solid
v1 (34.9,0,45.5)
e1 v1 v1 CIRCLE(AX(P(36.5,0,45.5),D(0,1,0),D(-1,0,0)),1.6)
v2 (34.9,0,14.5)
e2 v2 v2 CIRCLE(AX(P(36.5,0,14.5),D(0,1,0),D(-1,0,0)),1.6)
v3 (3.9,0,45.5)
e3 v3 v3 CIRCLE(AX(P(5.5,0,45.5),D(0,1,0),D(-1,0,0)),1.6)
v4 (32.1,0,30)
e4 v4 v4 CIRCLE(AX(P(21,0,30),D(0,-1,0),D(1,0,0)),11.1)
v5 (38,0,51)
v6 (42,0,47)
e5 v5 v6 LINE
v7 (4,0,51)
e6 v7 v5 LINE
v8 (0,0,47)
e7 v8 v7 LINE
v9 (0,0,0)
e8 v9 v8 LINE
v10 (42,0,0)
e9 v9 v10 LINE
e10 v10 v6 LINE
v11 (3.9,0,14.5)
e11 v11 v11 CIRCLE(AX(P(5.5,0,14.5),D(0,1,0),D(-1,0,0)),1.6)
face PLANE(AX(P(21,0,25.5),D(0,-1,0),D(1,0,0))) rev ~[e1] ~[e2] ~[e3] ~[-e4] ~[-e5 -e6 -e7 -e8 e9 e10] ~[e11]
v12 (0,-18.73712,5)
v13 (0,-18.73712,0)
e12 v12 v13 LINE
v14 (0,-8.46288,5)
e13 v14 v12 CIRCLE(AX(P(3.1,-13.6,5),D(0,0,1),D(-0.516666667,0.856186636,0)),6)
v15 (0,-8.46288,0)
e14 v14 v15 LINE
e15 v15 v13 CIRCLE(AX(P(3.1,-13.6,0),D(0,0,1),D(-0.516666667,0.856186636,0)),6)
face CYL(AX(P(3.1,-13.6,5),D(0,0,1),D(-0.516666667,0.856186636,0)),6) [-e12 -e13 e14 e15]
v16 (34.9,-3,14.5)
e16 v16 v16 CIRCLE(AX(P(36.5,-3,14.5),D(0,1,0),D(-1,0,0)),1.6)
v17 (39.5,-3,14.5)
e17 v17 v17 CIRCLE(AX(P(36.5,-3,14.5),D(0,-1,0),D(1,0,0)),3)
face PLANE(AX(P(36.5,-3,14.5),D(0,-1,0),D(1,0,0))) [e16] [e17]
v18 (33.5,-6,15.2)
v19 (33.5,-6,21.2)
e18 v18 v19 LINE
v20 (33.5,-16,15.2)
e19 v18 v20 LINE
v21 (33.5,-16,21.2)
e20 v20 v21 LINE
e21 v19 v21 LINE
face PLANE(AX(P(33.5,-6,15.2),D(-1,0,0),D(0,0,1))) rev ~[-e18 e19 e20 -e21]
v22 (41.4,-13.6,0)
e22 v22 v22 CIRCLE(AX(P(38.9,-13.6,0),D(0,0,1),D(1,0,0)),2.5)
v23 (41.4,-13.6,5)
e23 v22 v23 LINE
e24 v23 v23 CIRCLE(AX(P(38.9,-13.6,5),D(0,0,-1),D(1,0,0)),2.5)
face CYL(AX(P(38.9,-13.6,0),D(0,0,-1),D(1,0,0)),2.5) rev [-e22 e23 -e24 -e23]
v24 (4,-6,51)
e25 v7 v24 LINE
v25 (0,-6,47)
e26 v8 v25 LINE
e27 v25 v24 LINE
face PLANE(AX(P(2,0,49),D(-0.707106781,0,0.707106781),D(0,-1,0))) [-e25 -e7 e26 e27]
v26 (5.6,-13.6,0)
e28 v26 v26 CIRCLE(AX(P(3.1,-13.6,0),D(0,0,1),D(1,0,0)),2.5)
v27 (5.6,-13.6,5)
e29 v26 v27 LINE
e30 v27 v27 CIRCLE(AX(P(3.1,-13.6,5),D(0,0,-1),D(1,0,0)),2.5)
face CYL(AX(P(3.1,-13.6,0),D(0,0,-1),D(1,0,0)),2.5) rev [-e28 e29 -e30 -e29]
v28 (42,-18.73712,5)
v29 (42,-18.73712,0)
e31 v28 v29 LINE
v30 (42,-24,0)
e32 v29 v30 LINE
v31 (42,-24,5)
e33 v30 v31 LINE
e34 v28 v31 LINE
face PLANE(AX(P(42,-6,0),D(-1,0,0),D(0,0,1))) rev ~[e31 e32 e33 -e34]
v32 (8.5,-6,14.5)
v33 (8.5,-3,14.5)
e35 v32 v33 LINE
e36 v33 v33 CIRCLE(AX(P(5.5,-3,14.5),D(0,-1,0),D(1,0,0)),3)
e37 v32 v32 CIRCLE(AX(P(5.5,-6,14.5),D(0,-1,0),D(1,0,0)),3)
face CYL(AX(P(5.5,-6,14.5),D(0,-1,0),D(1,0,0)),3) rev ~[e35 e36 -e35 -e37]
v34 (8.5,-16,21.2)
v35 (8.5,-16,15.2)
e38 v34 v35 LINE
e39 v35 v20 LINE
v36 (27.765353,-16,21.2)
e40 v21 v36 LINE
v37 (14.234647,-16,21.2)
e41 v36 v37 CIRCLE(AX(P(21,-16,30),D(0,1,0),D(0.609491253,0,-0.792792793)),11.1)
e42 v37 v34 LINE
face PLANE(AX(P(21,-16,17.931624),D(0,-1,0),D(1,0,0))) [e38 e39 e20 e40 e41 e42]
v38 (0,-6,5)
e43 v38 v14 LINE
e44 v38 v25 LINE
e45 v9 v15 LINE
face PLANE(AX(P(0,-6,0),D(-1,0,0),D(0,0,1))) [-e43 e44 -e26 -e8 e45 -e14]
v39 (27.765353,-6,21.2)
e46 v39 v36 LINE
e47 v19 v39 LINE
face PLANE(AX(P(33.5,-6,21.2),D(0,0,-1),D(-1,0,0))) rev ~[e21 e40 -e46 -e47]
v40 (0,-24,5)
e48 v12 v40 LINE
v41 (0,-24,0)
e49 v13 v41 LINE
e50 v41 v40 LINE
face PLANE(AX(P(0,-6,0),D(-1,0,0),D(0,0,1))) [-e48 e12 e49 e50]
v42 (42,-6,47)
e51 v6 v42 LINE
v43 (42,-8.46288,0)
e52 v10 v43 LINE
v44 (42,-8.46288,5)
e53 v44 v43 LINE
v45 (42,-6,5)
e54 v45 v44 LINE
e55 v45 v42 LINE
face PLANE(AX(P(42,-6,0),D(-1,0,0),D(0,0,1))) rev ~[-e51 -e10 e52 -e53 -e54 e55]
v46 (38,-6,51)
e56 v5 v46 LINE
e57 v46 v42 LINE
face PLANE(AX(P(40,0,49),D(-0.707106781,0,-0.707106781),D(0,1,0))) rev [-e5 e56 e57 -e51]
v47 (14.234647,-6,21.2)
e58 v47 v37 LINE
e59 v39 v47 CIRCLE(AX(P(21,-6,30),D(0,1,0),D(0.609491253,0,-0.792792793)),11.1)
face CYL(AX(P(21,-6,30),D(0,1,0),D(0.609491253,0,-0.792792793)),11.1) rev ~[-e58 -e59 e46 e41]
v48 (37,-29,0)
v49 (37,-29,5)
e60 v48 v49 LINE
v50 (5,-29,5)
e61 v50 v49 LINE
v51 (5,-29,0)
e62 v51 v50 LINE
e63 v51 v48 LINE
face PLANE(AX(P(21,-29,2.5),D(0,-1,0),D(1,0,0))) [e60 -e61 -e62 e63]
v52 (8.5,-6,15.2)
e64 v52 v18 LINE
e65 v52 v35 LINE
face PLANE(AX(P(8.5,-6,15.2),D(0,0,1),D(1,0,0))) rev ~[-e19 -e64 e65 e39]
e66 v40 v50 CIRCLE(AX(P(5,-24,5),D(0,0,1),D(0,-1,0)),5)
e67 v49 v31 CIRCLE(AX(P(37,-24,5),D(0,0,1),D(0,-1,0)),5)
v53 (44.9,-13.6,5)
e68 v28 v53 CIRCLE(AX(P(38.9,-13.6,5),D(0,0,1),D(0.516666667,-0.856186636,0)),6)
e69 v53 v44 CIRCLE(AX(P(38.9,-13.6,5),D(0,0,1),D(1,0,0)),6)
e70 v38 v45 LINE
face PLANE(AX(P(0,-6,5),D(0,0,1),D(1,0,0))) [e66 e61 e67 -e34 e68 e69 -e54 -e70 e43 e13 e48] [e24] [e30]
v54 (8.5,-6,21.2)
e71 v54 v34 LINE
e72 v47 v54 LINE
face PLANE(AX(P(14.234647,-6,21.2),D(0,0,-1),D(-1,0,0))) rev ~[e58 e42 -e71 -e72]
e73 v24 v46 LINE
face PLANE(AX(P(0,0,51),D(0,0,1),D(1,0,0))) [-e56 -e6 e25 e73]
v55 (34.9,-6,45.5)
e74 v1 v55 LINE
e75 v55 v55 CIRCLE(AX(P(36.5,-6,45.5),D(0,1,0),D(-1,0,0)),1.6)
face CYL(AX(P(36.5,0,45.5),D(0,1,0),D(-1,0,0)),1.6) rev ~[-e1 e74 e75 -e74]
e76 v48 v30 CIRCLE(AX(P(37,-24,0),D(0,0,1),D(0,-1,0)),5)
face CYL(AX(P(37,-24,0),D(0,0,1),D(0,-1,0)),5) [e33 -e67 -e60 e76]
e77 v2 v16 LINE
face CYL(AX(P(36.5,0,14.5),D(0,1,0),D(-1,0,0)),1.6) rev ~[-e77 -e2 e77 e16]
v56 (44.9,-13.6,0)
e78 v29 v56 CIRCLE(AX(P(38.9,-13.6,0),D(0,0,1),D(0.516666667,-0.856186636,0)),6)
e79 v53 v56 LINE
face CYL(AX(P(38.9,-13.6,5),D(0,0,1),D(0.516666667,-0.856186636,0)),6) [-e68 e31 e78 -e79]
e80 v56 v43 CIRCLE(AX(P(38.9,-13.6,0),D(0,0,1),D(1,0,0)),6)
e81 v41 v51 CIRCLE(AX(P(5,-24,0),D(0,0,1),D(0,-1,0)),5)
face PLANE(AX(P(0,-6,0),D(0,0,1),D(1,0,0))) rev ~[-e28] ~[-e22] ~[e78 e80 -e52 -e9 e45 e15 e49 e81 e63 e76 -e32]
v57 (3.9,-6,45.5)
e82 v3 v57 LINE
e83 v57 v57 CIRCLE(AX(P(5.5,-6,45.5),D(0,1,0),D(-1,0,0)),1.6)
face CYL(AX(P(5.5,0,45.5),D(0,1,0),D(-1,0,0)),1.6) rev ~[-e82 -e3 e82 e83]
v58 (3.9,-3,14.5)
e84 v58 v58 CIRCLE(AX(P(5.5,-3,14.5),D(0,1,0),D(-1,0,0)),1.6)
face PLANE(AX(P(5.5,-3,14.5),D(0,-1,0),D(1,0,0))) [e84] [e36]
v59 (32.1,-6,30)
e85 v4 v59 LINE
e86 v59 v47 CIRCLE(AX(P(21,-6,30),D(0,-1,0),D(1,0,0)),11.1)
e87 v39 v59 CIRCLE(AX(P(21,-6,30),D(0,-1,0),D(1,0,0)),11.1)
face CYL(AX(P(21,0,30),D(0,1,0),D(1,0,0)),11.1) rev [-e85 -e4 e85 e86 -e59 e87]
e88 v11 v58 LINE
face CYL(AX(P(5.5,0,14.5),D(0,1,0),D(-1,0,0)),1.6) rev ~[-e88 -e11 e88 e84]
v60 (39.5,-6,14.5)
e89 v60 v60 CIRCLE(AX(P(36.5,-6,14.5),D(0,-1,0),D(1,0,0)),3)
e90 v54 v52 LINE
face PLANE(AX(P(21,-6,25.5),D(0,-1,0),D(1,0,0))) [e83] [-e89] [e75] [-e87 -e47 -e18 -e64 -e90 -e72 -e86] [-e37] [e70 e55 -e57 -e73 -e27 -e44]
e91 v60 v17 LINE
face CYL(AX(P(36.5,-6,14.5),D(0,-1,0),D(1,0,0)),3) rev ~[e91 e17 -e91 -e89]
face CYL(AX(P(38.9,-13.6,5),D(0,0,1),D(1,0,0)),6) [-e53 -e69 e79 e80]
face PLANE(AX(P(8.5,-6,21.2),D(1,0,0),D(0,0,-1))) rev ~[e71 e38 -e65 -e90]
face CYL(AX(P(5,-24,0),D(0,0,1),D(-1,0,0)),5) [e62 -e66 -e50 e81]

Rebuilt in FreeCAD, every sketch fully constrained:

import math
import FreeCAD as App
import Part
import Sketcher

V = App.Vector


def edges_at(feature, points):
    """Names of the edges that pass closest to the given points."""
    edges = feature.Shape.Edges
    near = lambda p: min(range(len(edges)), key=lambda i: edges[i].distToShape(Part.Vertex(*p))[0])
    return sorted({f"Edge{near(p) + 1}" for p in points})

doc = App.newDocument("Part")
body = doc.addObject("PartDesign::Body", "Body")

sketch1 = body.newObject("Sketcher::SketchObject", "Sketch")
sketch1.AttachmentSupport = (doc.getObject("XZ_Plane"), [""])
sketch1.MapMode = "FlatFace"
sketch1.addGeometry(Part.LineSegment(V(0, 51, 0), V(0, 0, 0)), False)
sketch1.addGeometry(Part.LineSegment(V(0, 0, 0), V(42, 0, 0)), False)
sketch1.addGeometry(Part.LineSegment(V(42, 0, 0), V(42, 51, 0)), False)
sketch1.addGeometry(Part.LineSegment(V(42, 51, 0), V(0, 51, 0)), False)
sketch1.addGeometry(Part.Circle(V(21, 30, 0), V(0, 0, 1), 11), False)
sketch1.addConstraint(Sketcher.Constraint("Coincident", 0, 2, 1, 1))
sketch1.addConstraint(Sketcher.Constraint("Coincident", 1, 2, 2, 1))
sketch1.addConstraint(Sketcher.Constraint("Coincident", 2, 2, 3, 1))
sketch1.addConstraint(Sketcher.Constraint("Coincident", 3, 2, 0, 1))
sketch1.addConstraint(Sketcher.Constraint("Vertical", 0))
sketch1.addConstraint(Sketcher.Constraint("Horizontal", 1))
sketch1.addConstraint(Sketcher.Constraint("Vertical", 2))
sketch1.addConstraint(Sketcher.Constraint("Horizontal", 3))
sketch1.addConstraint(Sketcher.Constraint("Coincident", 0, 2, -1, 1))
sketch1.addConstraint(Sketcher.Constraint("Diameter", 4, 22.2))
sketch1.addConstraint(Sketcher.Constraint("DistanceX", 1, 1, 1, 2, 42.0))
sketch1.addConstraint(Sketcher.Constraint("DistanceY", 0, 2, 0, 1, 51.0))
sketch1.addConstraint(Sketcher.Constraint("DistanceX", -1, 1, 4, 3, 21.0))
sketch1.addConstraint(Sketcher.Constraint("DistanceY", -1, 1, 4, 3, 30.0))
pad1 = body.newObject("PartDesign::Pad", "Pad")
pad1.Profile = sketch1
pad1.Length = 6
doc.recompute()

chamfer = body.newObject("PartDesign::Chamfer", "Chamfer")
chamfer.Base = (pad1, edges_at(pad1, [(0, -3, 51), (42, -3, 51)]))
chamfer.Size = 4

sketch2 = body.newObject("Sketcher::SketchObject", "Sketch001")
sketch2.AttachmentSupport = (doc.getObject("XZ_Plane"), [""])
sketch2.MapMode = "FlatFace"
sketch2.AttachmentOffset = App.Placement(V(0, 0, 6), App.Rotation())
sketch2.addGeometry(Part.LineSegment(V(0, 5, 0), V(0, 0, 0)), False)
sketch2.addGeometry(Part.LineSegment(V(0, 0, 0), V(42, 0, 0)), False)
sketch2.addGeometry(Part.LineSegment(V(42, 0, 0), V(42, 5, 0)), False)
sketch2.addGeometry(Part.LineSegment(V(42, 5, 0), V(0, 5, 0)), False)
sketch2.addConstraint(Sketcher.Constraint("Coincident", 0, 2, 1, 1))
sketch2.addConstraint(Sketcher.Constraint("Coincident", 1, 2, 2, 1))
sketch2.addConstraint(Sketcher.Constraint("Coincident", 2, 2, 3, 1))
sketch2.addConstraint(Sketcher.Constraint("Coincident", 3, 2, 0, 1))
sketch2.addConstraint(Sketcher.Constraint("Vertical", 0))
sketch2.addConstraint(Sketcher.Constraint("Horizontal", 1))
sketch2.addConstraint(Sketcher.Constraint("Vertical", 2))
sketch2.addConstraint(Sketcher.Constraint("Horizontal", 3))
sketch2.addConstraint(Sketcher.Constraint("Coincident", 0, 2, -1, 1))
sketch2.addConstraint(Sketcher.Constraint("DistanceX", 1, 1, 1, 2, 42.0))
sketch2.addConstraint(Sketcher.Constraint("DistanceY", 0, 2, 0, 1, 5.0))
pad2 = body.newObject("PartDesign::Pad", "Pad001")
pad2.Profile = sketch2
pad2.Length = 23

sketch3 = body.newObject("Sketcher::SketchObject", "Sketch002")
sketch3.AttachmentSupport = (doc.getObject("XZ_Plane"), [""])
sketch3.MapMode = "FlatFace"
sketch3.AttachmentOffset = App.Placement(V(0, 0, 6), App.Rotation())
sketch3.addGeometry(Part.LineSegment(V(14, 21, 0), V(8, 21, 0)), False)
sketch3.addGeometry(Part.LineSegment(V(8, 21, 0), V(8, 15, 0)), False)
sketch3.addGeometry(Part.LineSegment(V(8, 15, 0), V(34, 15, 0)), False)
sketch3.addGeometry(Part.LineSegment(V(34, 15, 0), V(34, 21, 0)), False)
sketch3.addGeometry(Part.LineSegment(V(34, 21, 0), V(28, 21, 0)), False)
sketch3.addGeometry(Part.ArcOfCircle(Part.Circle(V(21, 30, 0), V(0, 0, 1), 11), math.radians(-128), math.radians(-52)), False)
sketch3.addConstraint(Sketcher.Constraint("Coincident", 0, 2, 1, 1))
sketch3.addConstraint(Sketcher.Constraint("Coincident", 1, 2, 2, 1))
sketch3.addConstraint(Sketcher.Constraint("Coincident", 2, 2, 3, 1))
sketch3.addConstraint(Sketcher.Constraint("Coincident", 3, 2, 4, 1))
sketch3.addConstraint(Sketcher.Constraint("Coincident", 4, 2, 5, 2))
sketch3.addConstraint(Sketcher.Constraint("Coincident", 5, 1, 0, 1))
sketch3.addConstraint(Sketcher.Constraint("Horizontal", 0))
sketch3.addConstraint(Sketcher.Constraint("Vertical", 1))
sketch3.addConstraint(Sketcher.Constraint("Horizontal", 2))
sketch3.addConstraint(Sketcher.Constraint("Vertical", 3))
sketch3.addConstraint(Sketcher.Constraint("Horizontal", 4))
sketch3.addConstraint(Sketcher.Constraint("Horizontal", 0, 2, 3, 2))
sketch3.addConstraint(Sketcher.Constraint("Equal", 0, 4))
sketch3.addConstraint(Sketcher.Constraint("Radius", 5, 11.1))
sketch3.addConstraint(Sketcher.Constraint("DistanceX", 2, 1, 2, 2, 25.0))
sketch3.addConstraint(Sketcher.Constraint("DistanceY", 1, 2, 1, 1, 6.0))
sketch3.addConstraint(Sketcher.Constraint("DistanceX", -1, 1, 5, 3, 21.0))
sketch3.addConstraint(Sketcher.Constraint("DistanceY", -1, 1, 5, 3, 30.0))
sketch3.addConstraint(Sketcher.Constraint("DistanceY", -1, 1, 0, 2, 21.2))
pad3 = body.newObject("PartDesign::Pad", "Pad002")
pad3.Profile = sketch3
pad3.Length = 10

sketch4 = body.newObject("Sketcher::SketchObject", "Sketch003")
sketch4.AttachmentSupport = (doc.getObject("XZ_Plane"), [""])
sketch4.MapMode = "FlatFace"
sketch4.addGeometry(Part.Circle(V(36.5, 45.5, 0), V(0, 0, 1), 1.6), False)
sketch4.addGeometry(Part.Circle(V(5.5, 45.5, 0), V(0, 0, 1), 1.6), False)
sketch4.addGeometry(Part.Circle(V(5.5, 14.5, 0), V(0, 0, 1), 1.6), False)
sketch4.addGeometry(Part.Circle(V(36.5, 14.5, 0), V(0, 0, 1), 1.6), False)
sketch4.addConstraint(Sketcher.Constraint("Equal", 0, 1))
sketch4.addConstraint(Sketcher.Constraint("Equal", 1, 2))
sketch4.addConstraint(Sketcher.Constraint("Equal", 2, 3))
sketch4.addConstraint(Sketcher.Constraint("Horizontal", 0, 3, 1, 3))
sketch4.addConstraint(Sketcher.Constraint("Horizontal", 2, 3, 3, 3))
sketch4.addConstraint(Sketcher.Constraint("Vertical", 1, 3, 2, 3))
sketch4.addConstraint(Sketcher.Constraint("Vertical", 0, 3, 3, 3))
sketch4.addConstraint(Sketcher.Constraint("Diameter", 0, 3.2))
sketch4.addConstraint(Sketcher.Constraint("DistanceX", 1, 3, 0, 3, 31.0))
sketch4.addConstraint(Sketcher.Constraint("DistanceY", 2, 3, 1, 3, 31.0))
sketch4.addConstraint(Sketcher.Constraint("DistanceX", -1, 1, 0, 3, 36.5))
sketch4.addConstraint(Sketcher.Constraint("DistanceY", -1, 1, 0, 3, 45.5))
pocket1 = body.newObject("PartDesign::Pocket", "Pocket")
pocket1.Profile = sketch4
pocket1.Length = 25
pocket1.Reversed = True

sketch5 = body.newObject("Sketcher::SketchObject", "Sketch004")
sketch5.AttachmentSupport = (doc.getObject("XY_Plane"), [""])
sketch5.MapMode = "FlatFace"
sketch5.addGeometry(Part.Circle(V(3.1, -13.6, 0), V(0, 0, 1), 2.5), False)
sketch5.addGeometry(Part.Circle(V(38.9, -13.6, 0), V(0, 0, 1), 2.5), False)
sketch5.addConstraint(Sketcher.Constraint("Equal", 0, 1))
sketch5.addConstraint(Sketcher.Constraint("Horizontal", 0, 3, 1, 3))
sketch5.addConstraint(Sketcher.Constraint("Diameter", 0, 5.0))
sketch5.addConstraint(Sketcher.Constraint("DistanceX", -1, 1, 0, 3, 3.1))
sketch5.addConstraint(Sketcher.Constraint("DistanceY", 0, 3, -1, 1, 13.6))
sketch5.addConstraint(Sketcher.Constraint("DistanceX", -1, 1, 1, 3, 38.9))
pocket2 = body.newObject("PartDesign::Pocket", "Pocket001")
pocket2.Profile = sketch5
pocket2.Length = 6
pocket2.Reversed = True

sketch6 = body.newObject("Sketcher::SketchObject", "Sketch005")
sketch6.AttachmentSupport = (doc.getObject("XZ_Plane"), [""])
sketch6.MapMode = "FlatFace"
sketch6.AttachmentOffset = App.Placement(V(0, 0, 6), App.Rotation())
sketch6.addGeometry(Part.Circle(V(5.5, 14.5, 0), V(0, 0, 1), 3), False)
sketch6.addGeometry(Part.Circle(V(36.5, 14.5, 0), V(0, 0, 1), 3), False)
sketch6.addConstraint(Sketcher.Constraint("Equal", 0, 1))
sketch6.addConstraint(Sketcher.Constraint("Horizontal", 0, 3, 1, 3))
sketch6.addConstraint(Sketcher.Constraint("Diameter", 0, 6.0))
sketch6.addConstraint(Sketcher.Constraint("DistanceX", 0, 3, 1, 3, 31.0))
sketch6.addConstraint(Sketcher.Constraint("DistanceX", -1, 1, 0, 3, 5.5))
sketch6.addConstraint(Sketcher.Constraint("DistanceY", -1, 1, 0, 3, 14.5))
pocket3 = body.newObject("PartDesign::Pocket", "Pocket002")
pocket3.Profile = sketch6
pocket3.Length = 3

sketch7 = body.newObject("Sketcher::SketchObject", "Sketch006")
sketch7.AttachmentSupport = (doc.getObject("XY_Plane"), [""])
sketch7.MapMode = "FlatFace"
sketch7.AttachmentOffset = App.Placement(V(0, 0, 5), App.Rotation())
sketch7.addGeometry(Part.LineSegment(V(0, -19, 0), V(0, -8, 0)), False)
sketch7.addGeometry(Part.ArcOfCircle(Part.Circle(V(3, -14, 0), V(0, 0, 1), 6), math.radians(121), math.radians(239)), False)
sketch7.addGeometry(Part.ArcOfCircle(Part.Circle(V(39, -14, 0), V(0, 0, 1), 6), math.radians(0), math.radians(59)), False)
sketch7.addGeometry(Part.LineSegment(V(42, -8, 0), V(42, -19, 0)), False)
sketch7.addGeometry(Part.ArcOfCircle(Part.Circle(V(39, -14, 0), V(0, 0, 1), 6), math.radians(-59), math.radians(0)), False)
sketch7.addConstraint(Sketcher.Constraint("Coincident", 0, 1, 1, 2))
sketch7.addConstraint(Sketcher.Constraint("Coincident", 1, 1, 0, 2))
sketch7.addConstraint(Sketcher.Constraint("Coincident", 2, 2, 3, 1))
sketch7.addConstraint(Sketcher.Constraint("Coincident", 3, 2, 4, 1))
sketch7.addConstraint(Sketcher.Constraint("Tangent", 4, 2, 2, 1))
sketch7.addConstraint(Sketcher.Constraint("Vertical", 0))
sketch7.addConstraint(Sketcher.Constraint("Vertical", 3))
sketch7.addConstraint(Sketcher.Constraint("Equal", 1, 2))
sketch7.addConstraint(Sketcher.Constraint("Equal", 2, 4))
sketch7.addConstraint(Sketcher.Constraint("PointOnObject", 0, 1, -2))
sketch7.addConstraint(Sketcher.Constraint("Horizontal", 1, 3, 2, 3))
sketch7.addConstraint(Sketcher.Constraint("Horizontal", 1, 1, 2, 2))
sketch7.addConstraint(Sketcher.Constraint("Horizontal", 2, 3, 4, 2))
sketch7.addConstraint(Sketcher.Constraint("Radius", 1, 6.0))
sketch7.addConstraint(Sketcher.Constraint("DistanceX", -1, 1, 2, 2, 42.0))
sketch7.addConstraint(Sketcher.Constraint("DistanceX", -1, 1, 1, 3, 3.1))
sketch7.addConstraint(Sketcher.Constraint("DistanceY", 1, 3, -1, 1, 13.6))
pad4 = body.newObject("PartDesign::Pad", "Pad003")
pad4.Profile = sketch7
pad4.Length = 5
pad4.Reversed = True
doc.recompute()

fillet = body.newObject("PartDesign::Fillet", "Fillet")
fillet.Base = (pad4, edges_at(pad4, [(0, -29, 2.5), (42, -29, 2.5)]))
fillet.Radius = 5

doc.recompute()
